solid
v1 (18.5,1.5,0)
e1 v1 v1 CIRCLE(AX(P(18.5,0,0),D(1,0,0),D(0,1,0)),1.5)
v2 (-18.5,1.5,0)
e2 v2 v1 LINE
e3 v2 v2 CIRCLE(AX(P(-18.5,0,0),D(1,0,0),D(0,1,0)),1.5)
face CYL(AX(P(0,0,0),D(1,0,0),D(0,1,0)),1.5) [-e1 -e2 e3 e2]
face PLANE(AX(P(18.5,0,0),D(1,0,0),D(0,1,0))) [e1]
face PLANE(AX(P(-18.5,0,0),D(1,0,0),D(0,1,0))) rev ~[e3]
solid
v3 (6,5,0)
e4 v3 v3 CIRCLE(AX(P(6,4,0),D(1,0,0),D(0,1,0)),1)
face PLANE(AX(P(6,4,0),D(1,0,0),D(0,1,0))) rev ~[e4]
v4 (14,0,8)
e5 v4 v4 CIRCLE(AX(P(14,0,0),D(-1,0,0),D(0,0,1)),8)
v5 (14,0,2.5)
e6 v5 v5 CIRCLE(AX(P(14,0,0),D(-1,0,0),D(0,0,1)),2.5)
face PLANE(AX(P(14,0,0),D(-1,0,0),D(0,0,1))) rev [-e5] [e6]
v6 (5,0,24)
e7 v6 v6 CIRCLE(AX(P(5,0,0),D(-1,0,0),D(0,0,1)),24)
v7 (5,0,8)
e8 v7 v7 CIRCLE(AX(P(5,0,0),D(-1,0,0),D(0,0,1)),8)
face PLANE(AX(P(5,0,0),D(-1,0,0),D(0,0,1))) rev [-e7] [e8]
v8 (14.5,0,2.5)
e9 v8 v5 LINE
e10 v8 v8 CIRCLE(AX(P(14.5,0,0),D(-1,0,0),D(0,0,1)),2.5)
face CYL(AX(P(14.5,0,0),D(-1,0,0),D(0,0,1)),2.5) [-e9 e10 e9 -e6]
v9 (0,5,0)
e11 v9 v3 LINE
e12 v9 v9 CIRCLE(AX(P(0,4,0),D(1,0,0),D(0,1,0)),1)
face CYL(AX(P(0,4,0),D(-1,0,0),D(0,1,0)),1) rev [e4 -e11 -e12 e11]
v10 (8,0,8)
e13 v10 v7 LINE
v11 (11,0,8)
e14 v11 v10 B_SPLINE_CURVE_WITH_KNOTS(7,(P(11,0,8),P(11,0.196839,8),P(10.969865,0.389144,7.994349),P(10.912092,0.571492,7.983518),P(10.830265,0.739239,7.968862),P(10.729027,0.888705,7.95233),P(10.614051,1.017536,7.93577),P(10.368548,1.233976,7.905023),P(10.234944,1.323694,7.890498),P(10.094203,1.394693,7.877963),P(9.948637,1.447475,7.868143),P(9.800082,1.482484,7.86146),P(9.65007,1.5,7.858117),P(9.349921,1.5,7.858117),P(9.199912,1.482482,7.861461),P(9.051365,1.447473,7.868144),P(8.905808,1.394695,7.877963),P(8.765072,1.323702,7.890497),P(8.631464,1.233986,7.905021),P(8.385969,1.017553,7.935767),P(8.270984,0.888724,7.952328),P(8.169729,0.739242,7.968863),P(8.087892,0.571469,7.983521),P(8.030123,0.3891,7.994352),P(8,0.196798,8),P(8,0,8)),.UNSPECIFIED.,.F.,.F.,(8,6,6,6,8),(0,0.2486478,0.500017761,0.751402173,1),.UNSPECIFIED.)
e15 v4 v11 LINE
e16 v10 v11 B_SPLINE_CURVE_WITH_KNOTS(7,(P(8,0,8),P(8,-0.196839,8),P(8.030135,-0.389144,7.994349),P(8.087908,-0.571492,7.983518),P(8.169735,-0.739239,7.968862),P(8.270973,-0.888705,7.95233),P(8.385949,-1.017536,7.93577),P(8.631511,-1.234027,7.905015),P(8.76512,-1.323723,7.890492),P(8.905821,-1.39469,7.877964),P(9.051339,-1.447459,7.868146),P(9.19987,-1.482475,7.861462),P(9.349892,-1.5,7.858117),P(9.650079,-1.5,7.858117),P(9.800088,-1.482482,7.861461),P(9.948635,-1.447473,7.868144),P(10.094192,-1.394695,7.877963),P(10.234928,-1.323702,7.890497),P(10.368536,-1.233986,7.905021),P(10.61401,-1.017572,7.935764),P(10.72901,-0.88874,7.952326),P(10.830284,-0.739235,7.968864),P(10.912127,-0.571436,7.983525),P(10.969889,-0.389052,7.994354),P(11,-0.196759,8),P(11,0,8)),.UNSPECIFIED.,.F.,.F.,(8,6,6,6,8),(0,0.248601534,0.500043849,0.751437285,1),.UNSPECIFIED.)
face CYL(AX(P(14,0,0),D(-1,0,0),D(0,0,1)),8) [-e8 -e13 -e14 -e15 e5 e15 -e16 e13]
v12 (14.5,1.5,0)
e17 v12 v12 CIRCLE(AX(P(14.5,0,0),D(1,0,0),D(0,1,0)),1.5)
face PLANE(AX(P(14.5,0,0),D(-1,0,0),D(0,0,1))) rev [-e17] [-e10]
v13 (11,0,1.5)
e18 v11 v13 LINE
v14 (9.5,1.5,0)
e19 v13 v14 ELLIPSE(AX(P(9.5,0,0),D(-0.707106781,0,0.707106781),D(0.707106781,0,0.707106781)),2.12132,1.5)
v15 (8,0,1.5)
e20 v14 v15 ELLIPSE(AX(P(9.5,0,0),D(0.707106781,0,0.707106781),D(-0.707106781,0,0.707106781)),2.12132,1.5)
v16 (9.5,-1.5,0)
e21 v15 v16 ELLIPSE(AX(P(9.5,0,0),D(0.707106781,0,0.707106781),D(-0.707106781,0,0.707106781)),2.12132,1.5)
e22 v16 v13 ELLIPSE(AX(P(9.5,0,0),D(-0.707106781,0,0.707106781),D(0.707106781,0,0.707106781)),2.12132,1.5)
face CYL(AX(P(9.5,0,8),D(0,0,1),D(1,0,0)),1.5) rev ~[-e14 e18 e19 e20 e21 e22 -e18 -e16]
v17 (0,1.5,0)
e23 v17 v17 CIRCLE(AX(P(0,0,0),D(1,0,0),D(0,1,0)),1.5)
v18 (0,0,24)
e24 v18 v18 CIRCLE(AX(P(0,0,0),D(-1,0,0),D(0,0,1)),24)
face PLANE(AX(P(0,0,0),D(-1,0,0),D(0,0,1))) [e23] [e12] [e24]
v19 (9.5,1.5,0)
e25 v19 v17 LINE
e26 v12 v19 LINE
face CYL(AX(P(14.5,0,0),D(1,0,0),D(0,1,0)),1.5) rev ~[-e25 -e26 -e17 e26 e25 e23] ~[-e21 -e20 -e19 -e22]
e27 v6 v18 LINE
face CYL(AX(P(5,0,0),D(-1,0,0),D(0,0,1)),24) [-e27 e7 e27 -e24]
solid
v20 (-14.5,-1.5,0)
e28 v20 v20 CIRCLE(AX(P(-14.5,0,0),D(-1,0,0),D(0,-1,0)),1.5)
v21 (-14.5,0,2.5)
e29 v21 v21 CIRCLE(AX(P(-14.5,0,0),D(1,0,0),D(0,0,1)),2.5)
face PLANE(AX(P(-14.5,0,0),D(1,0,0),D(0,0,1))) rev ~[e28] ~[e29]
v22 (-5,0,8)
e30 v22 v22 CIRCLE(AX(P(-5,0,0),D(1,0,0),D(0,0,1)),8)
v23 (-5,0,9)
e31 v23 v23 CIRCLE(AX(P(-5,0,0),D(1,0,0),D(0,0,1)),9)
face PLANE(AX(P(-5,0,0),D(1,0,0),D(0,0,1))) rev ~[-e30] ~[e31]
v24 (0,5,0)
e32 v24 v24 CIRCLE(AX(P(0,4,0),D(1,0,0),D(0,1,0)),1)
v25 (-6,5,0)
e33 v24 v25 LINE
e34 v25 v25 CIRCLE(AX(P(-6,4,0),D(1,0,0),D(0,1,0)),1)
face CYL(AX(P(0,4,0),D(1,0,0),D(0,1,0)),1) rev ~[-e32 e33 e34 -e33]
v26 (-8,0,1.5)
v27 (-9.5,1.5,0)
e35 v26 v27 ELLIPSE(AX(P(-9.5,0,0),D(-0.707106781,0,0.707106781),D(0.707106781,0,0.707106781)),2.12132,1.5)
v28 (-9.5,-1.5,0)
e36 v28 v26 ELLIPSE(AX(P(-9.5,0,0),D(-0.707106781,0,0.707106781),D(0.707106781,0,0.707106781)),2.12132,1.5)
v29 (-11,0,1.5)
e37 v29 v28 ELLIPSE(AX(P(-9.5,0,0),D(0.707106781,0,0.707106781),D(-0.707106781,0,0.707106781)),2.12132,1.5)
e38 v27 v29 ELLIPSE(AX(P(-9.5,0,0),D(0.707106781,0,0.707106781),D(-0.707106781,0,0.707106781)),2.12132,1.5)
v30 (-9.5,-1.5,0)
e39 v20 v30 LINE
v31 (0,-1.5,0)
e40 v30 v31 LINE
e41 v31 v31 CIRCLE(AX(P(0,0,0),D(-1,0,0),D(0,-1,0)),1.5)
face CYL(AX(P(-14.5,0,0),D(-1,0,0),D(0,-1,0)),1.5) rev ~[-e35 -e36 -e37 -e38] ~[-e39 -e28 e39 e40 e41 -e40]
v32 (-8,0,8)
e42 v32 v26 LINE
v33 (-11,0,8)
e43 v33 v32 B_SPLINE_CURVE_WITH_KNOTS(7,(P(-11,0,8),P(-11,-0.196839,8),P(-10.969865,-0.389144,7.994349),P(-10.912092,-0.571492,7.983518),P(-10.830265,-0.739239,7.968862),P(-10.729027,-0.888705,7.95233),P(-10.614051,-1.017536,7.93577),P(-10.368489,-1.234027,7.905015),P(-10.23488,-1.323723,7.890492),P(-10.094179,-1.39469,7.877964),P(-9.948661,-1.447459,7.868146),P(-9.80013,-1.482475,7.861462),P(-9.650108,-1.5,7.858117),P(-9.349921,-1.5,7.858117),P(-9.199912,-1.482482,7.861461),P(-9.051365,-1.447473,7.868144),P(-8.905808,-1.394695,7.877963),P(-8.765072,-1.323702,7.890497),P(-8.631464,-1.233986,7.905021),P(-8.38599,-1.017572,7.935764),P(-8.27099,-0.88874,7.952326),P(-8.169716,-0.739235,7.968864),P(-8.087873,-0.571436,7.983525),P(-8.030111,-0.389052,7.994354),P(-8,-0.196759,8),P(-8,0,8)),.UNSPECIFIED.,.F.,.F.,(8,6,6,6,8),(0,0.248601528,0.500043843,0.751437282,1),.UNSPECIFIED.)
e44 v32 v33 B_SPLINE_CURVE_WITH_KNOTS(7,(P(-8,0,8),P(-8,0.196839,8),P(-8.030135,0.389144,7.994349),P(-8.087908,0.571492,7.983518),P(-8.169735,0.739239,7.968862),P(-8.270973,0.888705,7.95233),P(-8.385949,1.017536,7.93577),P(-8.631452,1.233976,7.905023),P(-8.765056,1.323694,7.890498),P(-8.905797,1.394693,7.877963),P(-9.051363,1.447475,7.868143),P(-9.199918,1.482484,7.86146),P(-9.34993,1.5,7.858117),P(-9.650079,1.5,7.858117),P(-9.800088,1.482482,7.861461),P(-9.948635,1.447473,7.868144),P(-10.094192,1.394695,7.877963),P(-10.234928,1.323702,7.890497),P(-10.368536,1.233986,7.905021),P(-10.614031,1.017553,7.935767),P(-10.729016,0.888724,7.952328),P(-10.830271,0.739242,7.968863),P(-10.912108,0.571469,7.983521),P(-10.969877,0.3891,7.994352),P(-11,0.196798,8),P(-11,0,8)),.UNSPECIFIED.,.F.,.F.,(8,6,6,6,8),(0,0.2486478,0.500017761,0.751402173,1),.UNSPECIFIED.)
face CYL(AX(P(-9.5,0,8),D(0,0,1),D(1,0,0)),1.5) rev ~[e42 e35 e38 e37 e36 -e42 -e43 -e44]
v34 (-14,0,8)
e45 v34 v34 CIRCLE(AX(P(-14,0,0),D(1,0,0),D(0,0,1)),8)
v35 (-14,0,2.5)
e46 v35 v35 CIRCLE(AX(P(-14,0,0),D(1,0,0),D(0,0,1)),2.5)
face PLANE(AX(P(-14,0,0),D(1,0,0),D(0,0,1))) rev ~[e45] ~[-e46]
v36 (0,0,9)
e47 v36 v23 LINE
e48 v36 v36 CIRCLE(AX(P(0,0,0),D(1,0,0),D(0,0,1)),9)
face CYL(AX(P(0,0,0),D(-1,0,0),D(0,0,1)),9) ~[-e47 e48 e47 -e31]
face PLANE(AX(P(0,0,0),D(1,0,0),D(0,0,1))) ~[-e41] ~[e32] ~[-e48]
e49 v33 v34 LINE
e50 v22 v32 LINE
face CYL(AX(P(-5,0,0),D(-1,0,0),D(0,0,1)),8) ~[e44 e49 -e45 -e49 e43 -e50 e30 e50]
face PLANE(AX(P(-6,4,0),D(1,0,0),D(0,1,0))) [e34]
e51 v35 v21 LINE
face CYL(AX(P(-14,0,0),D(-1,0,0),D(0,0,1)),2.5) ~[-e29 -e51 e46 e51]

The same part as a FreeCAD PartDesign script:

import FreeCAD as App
import Part
import Sketcher

doc = App.newDocument("Part")
body = doc.addObject("PartDesign::Body", "Body")

sketch1 = doc.addObject("Sketcher::SketchObject", "Sketch")
body.addObject(sketch1)
sketch1.AttachmentSupport = (doc.XZ_Plane, [""])
sketch1.MapMode = "FlatFace"
sketch1.addGeometry([
    Part.LineSegment(App.Vector(0, 24, 0), App.Vector(0, 0, 0)),
    Part.LineSegment(App.Vector(0, 0, 0), App.Vector(14.5, 0, 0)),
    Part.LineSegment(App.Vector(14.5, 0, 0), App.Vector(14.5, 2.5, 0)),
    Part.LineSegment(App.Vector(14.5, 2.5, 0), App.Vector(14, 2.5, 0)),
    Part.LineSegment(App.Vector(14, 2.5, 0), App.Vector(14, 8, 0)),
    Part.LineSegment(App.Vector(14, 8, 0), App.Vector(5, 8, 0)),
    Part.LineSegment(App.Vector(5, 8, 0), App.Vector(5, 24, 0)),
    Part.LineSegment(App.Vector(5, 24, 0), App.Vector(0, 24, 0)),
], False)
sketch1.addConstraint([
    Sketcher.Constraint("Coincident", 0, 2, 1, 1),
    Sketcher.Constraint("Coincident", 1, 2, 2, 1),
    Sketcher.Constraint("Coincident", 2, 2, 3, 1),
    Sketcher.Constraint("Coincident", 3, 2, 4, 1),
    Sketcher.Constraint("Coincident", 4, 2, 5, 1),
    Sketcher.Constraint("Coincident", 5, 2, 6, 1),
    Sketcher.Constraint("Coincident", 6, 2, 7, 1),
    Sketcher.Constraint("Coincident", 7, 2, 0, 1),
    Sketcher.Constraint("Vertical", 0),
    Sketcher.Constraint("Horizontal", 1),
    Sketcher.Constraint("Vertical", 2),
    Sketcher.Constraint("Horizontal", 3),
    Sketcher.Constraint("Vertical", 4),
    Sketcher.Constraint("Horizontal", 5),
    Sketcher.Constraint("Vertical", 6),
    Sketcher.Constraint("Horizontal", 7),
    Sketcher.Constraint("Coincident", 0, 2, -1, 1),
    Sketcher.Constraint("DistanceX", 5, 2, 5, 1, 9.0),
    Sketcher.Constraint("DistanceX", 7, 2, 7, 1, 5.0),
    Sketcher.Constraint("DistanceY", 0, 2, 0, 1, 24.0),
    Sketcher.Constraint("DistanceY", 6, 1, 6, 2, 16.0),
    Sketcher.Constraint("DistanceX", 1, 1, 1, 2, 14.5),
    Sketcher.Constraint("DistanceY", 2, 1, 2, 2, 2.5),
])
revolution = doc.addObject("PartDesign::Revolution", "Revolution")
body.addObject(revolution)
revolution.Profile = sketch1
revolution.ReferenceAxis = (sketch1, ["H_Axis"])
revolution.Angle = 360

sketch2 = doc.addObject("Sketcher::SketchObject", "Sketch001")
body.addObject(sketch2)
sketch2.AttachmentSupport = (doc.XY_Plane, [""])
sketch2.MapMode = "FlatFace"
sketch2.AttachmentOffset = App.Placement(App.Vector(0, 0, 8), App.Rotation())
sketch2.addGeometry(Part.Circle(App.Vector(9.5, 0, 0), App.Vector(0, 0, 1), 1.5), False)
sketch2.addConstraint([
    Sketcher.Constraint("PointOnObject", 0, 3, -1),
    Sketcher.Constraint("Diameter", 0, 3.0),
    Sketcher.Constraint("DistanceX", -1, 1, 0, 3, 9.5),
])
pocket1 = doc.addObject("PartDesign::Pocket", "Pocket")
body.addObject(pocket1)
pocket1.Profile = sketch2
pocket1.Length = 8

sketch3 = doc.addObject("Sketcher::SketchObject", "Sketch002")
body.addObject(sketch3)
sketch3.AttachmentSupport = (doc.YZ_Plane, [""])
sketch3.MapMode = "FlatFace"
sketch3.AttachmentOffset = App.Placement(App.Vector(0, 0, 14.5), App.Rotation())
sketch3.addGeometry(Part.Circle(App.Vector(0, 0, 0), App.Vector(0, 0, 1), 1.5), False)
sketch3.addConstraint([
    Sketcher.Constraint("Coincident", 0, 3, -1, 1),
    Sketcher.Constraint("Diameter", 0, 3.0),
])
pocket2 = doc.addObject("PartDesign::Pocket", "Pocket001")
body.addObject(pocket2)
pocket2.Profile = sketch3
pocket2.Type = "ThroughAll"

sketch4 = doc.addObject("Sketcher::SketchObject", "Sketch003")
body.addObject(sketch4)
sketch4.AttachmentSupport = (doc.YZ_Plane, [""])
sketch4.MapMode = "FlatFace"
sketch4.addGeometry(Part.Circle(App.Vector(4, 0, 0), App.Vector(0, 0, 1), 1), False)
sketch4.addConstraint([
    Sketcher.Constraint("PointOnObject", 0, 3, -1),
    Sketcher.Constraint("Diameter", 0, 2.0),
    Sketcher.Constraint("DistanceX", -1, 1, 0, 3, 4.0),
])
pocket3 = doc.addObject("PartDesign::Pocket", "Pocket002")
body.addObject(pocket3)
pocket3.Profile = sketch4
pocket3.Length = 6
pocket3.Reversed = True
body2 = doc.addObject("PartDesign::Body", "Body001")

sketch5 = doc.addObject("Sketcher::SketchObject", "Sketch004")
body2.addObject(sketch5)
sketch5.AttachmentSupport = (doc.getObject("XZ_Plane001"), [""])
sketch5.MapMode = "FlatFace"
sketch5.addGeometry([
    Part.LineSegment(App.Vector(-14.5, 0, 0), App.Vector(0, 0, 0)),
    Part.LineSegment(App.Vector(0, 0, 0), App.Vector(0, 9, 0)),
    Part.LineSegment(App.Vector(0, 9, 0), App.Vector(-5, 9, 0)),
    Part.LineSegment(App.Vector(-5, 9, 0), App.Vector(-5, 8, 0)),
    Part.LineSegment(App.Vector(-5, 8, 0), App.Vector(-14, 8, 0)),
    Part.LineSegment(App.Vector(-14, 8, 0), App.Vector(-14, 2.5, 0)),
    Part.LineSegment(App.Vector(-14, 2.5, 0), App.Vector(-14.5, 2.5, 0)),
    Part.LineSegment(App.Vector(-14.5, 2.5, 0), App.Vector(-14.5, 0, 0)),
], False)
sketch5.addConstraint([
    Sketcher.Constraint("Coincident", 0, 2, 1, 1),
    Sketcher.Constraint("Coincident", 1, 2, 2, 1),
    Sketcher.Constraint("Coincident", 2, 2, 3, 1),
    Sketcher.Constraint("Coincident", 3, 2, 4, 1),
    Sketcher.Constraint("Coincident", 4, 2, 5, 1),
    Sketcher.Constraint("Coincident", 5, 2, 6, 1),
    Sketcher.Constraint("Coincident", 6, 2, 7, 1),
    Sketcher.Constraint("Coincident", 7, 2, 0, 1),
    Sketcher.Constraint("Horizontal", 0),
    Sketcher.Constraint("Vertical", 1),
    Sketcher.Constraint("Horizontal", 2),
    Sketcher.Constraint("Vertical", 3),
    Sketcher.Constraint("Horizontal", 4),
    Sketcher.Constraint("Vertical", 5),
    Sketcher.Constraint("Horizontal", 6),
    Sketcher.Constraint("Vertical", 7),
    Sketcher.Constraint("Coincident", 0, 2, -1, 1),
    Sketcher.Constraint("Equal", 4, 1),
    Sketcher.Constraint("DistanceX", 2, 2, 2, 1, 5.0),
    Sketcher.Constraint("DistanceX", 4, 2, 4, 1, 9.0),
    Sketcher.Constraint("DistanceY", 3, 2, 3, 1, 1.0),
    Sketcher.Constraint("DistanceX", 0, 1, 0, 2, 14.5),
    Sketcher.Constraint("DistanceY", 5, 2, 5, 1, 5.5),
])
revolution2 = doc.addObject("PartDesign::Revolution", "Revolution001")
body2.addObject(revolution2)
revolution2.Profile = sketch5
revolution2.ReferenceAxis = (sketch5, ["H_Axis"])
revolution2.Angle = 360

sketch6 = doc.addObject("Sketcher::SketchObject", "Sketch005")
body2.addObject(sketch6)
sketch6.AttachmentSupport = (doc.getObject("XY_Plane001"), [""])
sketch6.MapMode = "FlatFace"
sketch6.AttachmentOffset = App.Placement(App.Vector(0, 0, 8), App.Rotation())
sketch6.addGeometry(Part.Circle(App.Vector(-9.5, 0, 0), App.Vector(0, 0, 1), 1.5), False)
sketch6.addConstraint([
    Sketcher.Constraint("PointOnObject", 0, 3, -1),
    Sketcher.Constraint("Diameter", 0, 3.0),
    Sketcher.Constraint("DistanceX", 0, 3, -1, 1, 9.5),
])
pocket4 = doc.addObject("PartDesign::Pocket", "Pocket003")
body2.addObject(pocket4)
pocket4.Profile = sketch6
pocket4.Length = 8

sketch7 = doc.addObject("Sketcher::SketchObject", "Sketch006")
body2.addObject(sketch7)
sketch7.AttachmentSupport = (doc.getObject("YZ_Plane001"), [""])
sketch7.MapMode = "FlatFace"
sketch7.AttachmentOffset = App.Placement(App.Vector(0, 0, -14.5), App.Rotation())
sketch7.addGeometry(Part.Circle(App.Vector(0, 0, 0), App.Vector(0, 0, 1), 1.5), False)
sketch7.addConstraint([
    Sketcher.Constraint("Coincident", 0, 3, -1, 1),
    Sketcher.Constraint("Diameter", 0, 3.0),
])
pocket5 = doc.addObject("PartDesign::Pocket", "Pocket004")
body2.addObject(pocket5)
pocket5.Profile = sketch7
pocket5.Type = "ThroughAll"
pocket5.Reversed = True

sketch8 = doc.addObject("Sketcher::SketchObject", "Sketch007")
body2.addObject(sketch8)
sketch8.AttachmentSupport = (doc.getObject("YZ_Plane001"), [""])
sketch8.MapMode = "FlatFace"
sketch8.addGeometry(Part.Circle(App.Vector(4, 0, 0), App.Vector(0, 0, 1), 1), False)
sketch8.addConstraint([
    Sketcher.Constraint("PointOnObject", 0, 3, -1),
    Sketcher.Constraint("Diameter", 0, 2.0),
    Sketcher.Constraint("DistanceX", -1, 1, 0, 3, 4.0),
])
pocket6 = doc.addObject("PartDesign::Pocket", "Pocket005")
body2.addObject(pocket6)
pocket6.Profile = sketch8
pocket6.Length = 6
body3 = doc.addObject("PartDesign::Body", "Body002")

sketch9 = doc.addObject("Sketcher::SketchObject", "Sketch008")
body3.addObject(sketch9)
sketch9.AttachmentSupport = (doc.getObject("YZ_Plane002"), [""])
sketch9.MapMode = "FlatFace"
sketch9.addGeometry(Part.Circle(App.Vector(0, 0, 0), App.Vector(0, 0, 1), 1.5), False)
sketch9.addConstraint([
    Sketcher.Constraint("Coincident", 0, 3, -1, 1),
    Sketcher.Constraint("Diameter", 0, 3.0),
])
pad1 = doc.addObject("PartDesign::Pad", "Pad")
body3.addObject(pad1)
pad1.Profile = sketch9
pad1.Length = 37
pad1.Midplane = True

doc.recompute()
